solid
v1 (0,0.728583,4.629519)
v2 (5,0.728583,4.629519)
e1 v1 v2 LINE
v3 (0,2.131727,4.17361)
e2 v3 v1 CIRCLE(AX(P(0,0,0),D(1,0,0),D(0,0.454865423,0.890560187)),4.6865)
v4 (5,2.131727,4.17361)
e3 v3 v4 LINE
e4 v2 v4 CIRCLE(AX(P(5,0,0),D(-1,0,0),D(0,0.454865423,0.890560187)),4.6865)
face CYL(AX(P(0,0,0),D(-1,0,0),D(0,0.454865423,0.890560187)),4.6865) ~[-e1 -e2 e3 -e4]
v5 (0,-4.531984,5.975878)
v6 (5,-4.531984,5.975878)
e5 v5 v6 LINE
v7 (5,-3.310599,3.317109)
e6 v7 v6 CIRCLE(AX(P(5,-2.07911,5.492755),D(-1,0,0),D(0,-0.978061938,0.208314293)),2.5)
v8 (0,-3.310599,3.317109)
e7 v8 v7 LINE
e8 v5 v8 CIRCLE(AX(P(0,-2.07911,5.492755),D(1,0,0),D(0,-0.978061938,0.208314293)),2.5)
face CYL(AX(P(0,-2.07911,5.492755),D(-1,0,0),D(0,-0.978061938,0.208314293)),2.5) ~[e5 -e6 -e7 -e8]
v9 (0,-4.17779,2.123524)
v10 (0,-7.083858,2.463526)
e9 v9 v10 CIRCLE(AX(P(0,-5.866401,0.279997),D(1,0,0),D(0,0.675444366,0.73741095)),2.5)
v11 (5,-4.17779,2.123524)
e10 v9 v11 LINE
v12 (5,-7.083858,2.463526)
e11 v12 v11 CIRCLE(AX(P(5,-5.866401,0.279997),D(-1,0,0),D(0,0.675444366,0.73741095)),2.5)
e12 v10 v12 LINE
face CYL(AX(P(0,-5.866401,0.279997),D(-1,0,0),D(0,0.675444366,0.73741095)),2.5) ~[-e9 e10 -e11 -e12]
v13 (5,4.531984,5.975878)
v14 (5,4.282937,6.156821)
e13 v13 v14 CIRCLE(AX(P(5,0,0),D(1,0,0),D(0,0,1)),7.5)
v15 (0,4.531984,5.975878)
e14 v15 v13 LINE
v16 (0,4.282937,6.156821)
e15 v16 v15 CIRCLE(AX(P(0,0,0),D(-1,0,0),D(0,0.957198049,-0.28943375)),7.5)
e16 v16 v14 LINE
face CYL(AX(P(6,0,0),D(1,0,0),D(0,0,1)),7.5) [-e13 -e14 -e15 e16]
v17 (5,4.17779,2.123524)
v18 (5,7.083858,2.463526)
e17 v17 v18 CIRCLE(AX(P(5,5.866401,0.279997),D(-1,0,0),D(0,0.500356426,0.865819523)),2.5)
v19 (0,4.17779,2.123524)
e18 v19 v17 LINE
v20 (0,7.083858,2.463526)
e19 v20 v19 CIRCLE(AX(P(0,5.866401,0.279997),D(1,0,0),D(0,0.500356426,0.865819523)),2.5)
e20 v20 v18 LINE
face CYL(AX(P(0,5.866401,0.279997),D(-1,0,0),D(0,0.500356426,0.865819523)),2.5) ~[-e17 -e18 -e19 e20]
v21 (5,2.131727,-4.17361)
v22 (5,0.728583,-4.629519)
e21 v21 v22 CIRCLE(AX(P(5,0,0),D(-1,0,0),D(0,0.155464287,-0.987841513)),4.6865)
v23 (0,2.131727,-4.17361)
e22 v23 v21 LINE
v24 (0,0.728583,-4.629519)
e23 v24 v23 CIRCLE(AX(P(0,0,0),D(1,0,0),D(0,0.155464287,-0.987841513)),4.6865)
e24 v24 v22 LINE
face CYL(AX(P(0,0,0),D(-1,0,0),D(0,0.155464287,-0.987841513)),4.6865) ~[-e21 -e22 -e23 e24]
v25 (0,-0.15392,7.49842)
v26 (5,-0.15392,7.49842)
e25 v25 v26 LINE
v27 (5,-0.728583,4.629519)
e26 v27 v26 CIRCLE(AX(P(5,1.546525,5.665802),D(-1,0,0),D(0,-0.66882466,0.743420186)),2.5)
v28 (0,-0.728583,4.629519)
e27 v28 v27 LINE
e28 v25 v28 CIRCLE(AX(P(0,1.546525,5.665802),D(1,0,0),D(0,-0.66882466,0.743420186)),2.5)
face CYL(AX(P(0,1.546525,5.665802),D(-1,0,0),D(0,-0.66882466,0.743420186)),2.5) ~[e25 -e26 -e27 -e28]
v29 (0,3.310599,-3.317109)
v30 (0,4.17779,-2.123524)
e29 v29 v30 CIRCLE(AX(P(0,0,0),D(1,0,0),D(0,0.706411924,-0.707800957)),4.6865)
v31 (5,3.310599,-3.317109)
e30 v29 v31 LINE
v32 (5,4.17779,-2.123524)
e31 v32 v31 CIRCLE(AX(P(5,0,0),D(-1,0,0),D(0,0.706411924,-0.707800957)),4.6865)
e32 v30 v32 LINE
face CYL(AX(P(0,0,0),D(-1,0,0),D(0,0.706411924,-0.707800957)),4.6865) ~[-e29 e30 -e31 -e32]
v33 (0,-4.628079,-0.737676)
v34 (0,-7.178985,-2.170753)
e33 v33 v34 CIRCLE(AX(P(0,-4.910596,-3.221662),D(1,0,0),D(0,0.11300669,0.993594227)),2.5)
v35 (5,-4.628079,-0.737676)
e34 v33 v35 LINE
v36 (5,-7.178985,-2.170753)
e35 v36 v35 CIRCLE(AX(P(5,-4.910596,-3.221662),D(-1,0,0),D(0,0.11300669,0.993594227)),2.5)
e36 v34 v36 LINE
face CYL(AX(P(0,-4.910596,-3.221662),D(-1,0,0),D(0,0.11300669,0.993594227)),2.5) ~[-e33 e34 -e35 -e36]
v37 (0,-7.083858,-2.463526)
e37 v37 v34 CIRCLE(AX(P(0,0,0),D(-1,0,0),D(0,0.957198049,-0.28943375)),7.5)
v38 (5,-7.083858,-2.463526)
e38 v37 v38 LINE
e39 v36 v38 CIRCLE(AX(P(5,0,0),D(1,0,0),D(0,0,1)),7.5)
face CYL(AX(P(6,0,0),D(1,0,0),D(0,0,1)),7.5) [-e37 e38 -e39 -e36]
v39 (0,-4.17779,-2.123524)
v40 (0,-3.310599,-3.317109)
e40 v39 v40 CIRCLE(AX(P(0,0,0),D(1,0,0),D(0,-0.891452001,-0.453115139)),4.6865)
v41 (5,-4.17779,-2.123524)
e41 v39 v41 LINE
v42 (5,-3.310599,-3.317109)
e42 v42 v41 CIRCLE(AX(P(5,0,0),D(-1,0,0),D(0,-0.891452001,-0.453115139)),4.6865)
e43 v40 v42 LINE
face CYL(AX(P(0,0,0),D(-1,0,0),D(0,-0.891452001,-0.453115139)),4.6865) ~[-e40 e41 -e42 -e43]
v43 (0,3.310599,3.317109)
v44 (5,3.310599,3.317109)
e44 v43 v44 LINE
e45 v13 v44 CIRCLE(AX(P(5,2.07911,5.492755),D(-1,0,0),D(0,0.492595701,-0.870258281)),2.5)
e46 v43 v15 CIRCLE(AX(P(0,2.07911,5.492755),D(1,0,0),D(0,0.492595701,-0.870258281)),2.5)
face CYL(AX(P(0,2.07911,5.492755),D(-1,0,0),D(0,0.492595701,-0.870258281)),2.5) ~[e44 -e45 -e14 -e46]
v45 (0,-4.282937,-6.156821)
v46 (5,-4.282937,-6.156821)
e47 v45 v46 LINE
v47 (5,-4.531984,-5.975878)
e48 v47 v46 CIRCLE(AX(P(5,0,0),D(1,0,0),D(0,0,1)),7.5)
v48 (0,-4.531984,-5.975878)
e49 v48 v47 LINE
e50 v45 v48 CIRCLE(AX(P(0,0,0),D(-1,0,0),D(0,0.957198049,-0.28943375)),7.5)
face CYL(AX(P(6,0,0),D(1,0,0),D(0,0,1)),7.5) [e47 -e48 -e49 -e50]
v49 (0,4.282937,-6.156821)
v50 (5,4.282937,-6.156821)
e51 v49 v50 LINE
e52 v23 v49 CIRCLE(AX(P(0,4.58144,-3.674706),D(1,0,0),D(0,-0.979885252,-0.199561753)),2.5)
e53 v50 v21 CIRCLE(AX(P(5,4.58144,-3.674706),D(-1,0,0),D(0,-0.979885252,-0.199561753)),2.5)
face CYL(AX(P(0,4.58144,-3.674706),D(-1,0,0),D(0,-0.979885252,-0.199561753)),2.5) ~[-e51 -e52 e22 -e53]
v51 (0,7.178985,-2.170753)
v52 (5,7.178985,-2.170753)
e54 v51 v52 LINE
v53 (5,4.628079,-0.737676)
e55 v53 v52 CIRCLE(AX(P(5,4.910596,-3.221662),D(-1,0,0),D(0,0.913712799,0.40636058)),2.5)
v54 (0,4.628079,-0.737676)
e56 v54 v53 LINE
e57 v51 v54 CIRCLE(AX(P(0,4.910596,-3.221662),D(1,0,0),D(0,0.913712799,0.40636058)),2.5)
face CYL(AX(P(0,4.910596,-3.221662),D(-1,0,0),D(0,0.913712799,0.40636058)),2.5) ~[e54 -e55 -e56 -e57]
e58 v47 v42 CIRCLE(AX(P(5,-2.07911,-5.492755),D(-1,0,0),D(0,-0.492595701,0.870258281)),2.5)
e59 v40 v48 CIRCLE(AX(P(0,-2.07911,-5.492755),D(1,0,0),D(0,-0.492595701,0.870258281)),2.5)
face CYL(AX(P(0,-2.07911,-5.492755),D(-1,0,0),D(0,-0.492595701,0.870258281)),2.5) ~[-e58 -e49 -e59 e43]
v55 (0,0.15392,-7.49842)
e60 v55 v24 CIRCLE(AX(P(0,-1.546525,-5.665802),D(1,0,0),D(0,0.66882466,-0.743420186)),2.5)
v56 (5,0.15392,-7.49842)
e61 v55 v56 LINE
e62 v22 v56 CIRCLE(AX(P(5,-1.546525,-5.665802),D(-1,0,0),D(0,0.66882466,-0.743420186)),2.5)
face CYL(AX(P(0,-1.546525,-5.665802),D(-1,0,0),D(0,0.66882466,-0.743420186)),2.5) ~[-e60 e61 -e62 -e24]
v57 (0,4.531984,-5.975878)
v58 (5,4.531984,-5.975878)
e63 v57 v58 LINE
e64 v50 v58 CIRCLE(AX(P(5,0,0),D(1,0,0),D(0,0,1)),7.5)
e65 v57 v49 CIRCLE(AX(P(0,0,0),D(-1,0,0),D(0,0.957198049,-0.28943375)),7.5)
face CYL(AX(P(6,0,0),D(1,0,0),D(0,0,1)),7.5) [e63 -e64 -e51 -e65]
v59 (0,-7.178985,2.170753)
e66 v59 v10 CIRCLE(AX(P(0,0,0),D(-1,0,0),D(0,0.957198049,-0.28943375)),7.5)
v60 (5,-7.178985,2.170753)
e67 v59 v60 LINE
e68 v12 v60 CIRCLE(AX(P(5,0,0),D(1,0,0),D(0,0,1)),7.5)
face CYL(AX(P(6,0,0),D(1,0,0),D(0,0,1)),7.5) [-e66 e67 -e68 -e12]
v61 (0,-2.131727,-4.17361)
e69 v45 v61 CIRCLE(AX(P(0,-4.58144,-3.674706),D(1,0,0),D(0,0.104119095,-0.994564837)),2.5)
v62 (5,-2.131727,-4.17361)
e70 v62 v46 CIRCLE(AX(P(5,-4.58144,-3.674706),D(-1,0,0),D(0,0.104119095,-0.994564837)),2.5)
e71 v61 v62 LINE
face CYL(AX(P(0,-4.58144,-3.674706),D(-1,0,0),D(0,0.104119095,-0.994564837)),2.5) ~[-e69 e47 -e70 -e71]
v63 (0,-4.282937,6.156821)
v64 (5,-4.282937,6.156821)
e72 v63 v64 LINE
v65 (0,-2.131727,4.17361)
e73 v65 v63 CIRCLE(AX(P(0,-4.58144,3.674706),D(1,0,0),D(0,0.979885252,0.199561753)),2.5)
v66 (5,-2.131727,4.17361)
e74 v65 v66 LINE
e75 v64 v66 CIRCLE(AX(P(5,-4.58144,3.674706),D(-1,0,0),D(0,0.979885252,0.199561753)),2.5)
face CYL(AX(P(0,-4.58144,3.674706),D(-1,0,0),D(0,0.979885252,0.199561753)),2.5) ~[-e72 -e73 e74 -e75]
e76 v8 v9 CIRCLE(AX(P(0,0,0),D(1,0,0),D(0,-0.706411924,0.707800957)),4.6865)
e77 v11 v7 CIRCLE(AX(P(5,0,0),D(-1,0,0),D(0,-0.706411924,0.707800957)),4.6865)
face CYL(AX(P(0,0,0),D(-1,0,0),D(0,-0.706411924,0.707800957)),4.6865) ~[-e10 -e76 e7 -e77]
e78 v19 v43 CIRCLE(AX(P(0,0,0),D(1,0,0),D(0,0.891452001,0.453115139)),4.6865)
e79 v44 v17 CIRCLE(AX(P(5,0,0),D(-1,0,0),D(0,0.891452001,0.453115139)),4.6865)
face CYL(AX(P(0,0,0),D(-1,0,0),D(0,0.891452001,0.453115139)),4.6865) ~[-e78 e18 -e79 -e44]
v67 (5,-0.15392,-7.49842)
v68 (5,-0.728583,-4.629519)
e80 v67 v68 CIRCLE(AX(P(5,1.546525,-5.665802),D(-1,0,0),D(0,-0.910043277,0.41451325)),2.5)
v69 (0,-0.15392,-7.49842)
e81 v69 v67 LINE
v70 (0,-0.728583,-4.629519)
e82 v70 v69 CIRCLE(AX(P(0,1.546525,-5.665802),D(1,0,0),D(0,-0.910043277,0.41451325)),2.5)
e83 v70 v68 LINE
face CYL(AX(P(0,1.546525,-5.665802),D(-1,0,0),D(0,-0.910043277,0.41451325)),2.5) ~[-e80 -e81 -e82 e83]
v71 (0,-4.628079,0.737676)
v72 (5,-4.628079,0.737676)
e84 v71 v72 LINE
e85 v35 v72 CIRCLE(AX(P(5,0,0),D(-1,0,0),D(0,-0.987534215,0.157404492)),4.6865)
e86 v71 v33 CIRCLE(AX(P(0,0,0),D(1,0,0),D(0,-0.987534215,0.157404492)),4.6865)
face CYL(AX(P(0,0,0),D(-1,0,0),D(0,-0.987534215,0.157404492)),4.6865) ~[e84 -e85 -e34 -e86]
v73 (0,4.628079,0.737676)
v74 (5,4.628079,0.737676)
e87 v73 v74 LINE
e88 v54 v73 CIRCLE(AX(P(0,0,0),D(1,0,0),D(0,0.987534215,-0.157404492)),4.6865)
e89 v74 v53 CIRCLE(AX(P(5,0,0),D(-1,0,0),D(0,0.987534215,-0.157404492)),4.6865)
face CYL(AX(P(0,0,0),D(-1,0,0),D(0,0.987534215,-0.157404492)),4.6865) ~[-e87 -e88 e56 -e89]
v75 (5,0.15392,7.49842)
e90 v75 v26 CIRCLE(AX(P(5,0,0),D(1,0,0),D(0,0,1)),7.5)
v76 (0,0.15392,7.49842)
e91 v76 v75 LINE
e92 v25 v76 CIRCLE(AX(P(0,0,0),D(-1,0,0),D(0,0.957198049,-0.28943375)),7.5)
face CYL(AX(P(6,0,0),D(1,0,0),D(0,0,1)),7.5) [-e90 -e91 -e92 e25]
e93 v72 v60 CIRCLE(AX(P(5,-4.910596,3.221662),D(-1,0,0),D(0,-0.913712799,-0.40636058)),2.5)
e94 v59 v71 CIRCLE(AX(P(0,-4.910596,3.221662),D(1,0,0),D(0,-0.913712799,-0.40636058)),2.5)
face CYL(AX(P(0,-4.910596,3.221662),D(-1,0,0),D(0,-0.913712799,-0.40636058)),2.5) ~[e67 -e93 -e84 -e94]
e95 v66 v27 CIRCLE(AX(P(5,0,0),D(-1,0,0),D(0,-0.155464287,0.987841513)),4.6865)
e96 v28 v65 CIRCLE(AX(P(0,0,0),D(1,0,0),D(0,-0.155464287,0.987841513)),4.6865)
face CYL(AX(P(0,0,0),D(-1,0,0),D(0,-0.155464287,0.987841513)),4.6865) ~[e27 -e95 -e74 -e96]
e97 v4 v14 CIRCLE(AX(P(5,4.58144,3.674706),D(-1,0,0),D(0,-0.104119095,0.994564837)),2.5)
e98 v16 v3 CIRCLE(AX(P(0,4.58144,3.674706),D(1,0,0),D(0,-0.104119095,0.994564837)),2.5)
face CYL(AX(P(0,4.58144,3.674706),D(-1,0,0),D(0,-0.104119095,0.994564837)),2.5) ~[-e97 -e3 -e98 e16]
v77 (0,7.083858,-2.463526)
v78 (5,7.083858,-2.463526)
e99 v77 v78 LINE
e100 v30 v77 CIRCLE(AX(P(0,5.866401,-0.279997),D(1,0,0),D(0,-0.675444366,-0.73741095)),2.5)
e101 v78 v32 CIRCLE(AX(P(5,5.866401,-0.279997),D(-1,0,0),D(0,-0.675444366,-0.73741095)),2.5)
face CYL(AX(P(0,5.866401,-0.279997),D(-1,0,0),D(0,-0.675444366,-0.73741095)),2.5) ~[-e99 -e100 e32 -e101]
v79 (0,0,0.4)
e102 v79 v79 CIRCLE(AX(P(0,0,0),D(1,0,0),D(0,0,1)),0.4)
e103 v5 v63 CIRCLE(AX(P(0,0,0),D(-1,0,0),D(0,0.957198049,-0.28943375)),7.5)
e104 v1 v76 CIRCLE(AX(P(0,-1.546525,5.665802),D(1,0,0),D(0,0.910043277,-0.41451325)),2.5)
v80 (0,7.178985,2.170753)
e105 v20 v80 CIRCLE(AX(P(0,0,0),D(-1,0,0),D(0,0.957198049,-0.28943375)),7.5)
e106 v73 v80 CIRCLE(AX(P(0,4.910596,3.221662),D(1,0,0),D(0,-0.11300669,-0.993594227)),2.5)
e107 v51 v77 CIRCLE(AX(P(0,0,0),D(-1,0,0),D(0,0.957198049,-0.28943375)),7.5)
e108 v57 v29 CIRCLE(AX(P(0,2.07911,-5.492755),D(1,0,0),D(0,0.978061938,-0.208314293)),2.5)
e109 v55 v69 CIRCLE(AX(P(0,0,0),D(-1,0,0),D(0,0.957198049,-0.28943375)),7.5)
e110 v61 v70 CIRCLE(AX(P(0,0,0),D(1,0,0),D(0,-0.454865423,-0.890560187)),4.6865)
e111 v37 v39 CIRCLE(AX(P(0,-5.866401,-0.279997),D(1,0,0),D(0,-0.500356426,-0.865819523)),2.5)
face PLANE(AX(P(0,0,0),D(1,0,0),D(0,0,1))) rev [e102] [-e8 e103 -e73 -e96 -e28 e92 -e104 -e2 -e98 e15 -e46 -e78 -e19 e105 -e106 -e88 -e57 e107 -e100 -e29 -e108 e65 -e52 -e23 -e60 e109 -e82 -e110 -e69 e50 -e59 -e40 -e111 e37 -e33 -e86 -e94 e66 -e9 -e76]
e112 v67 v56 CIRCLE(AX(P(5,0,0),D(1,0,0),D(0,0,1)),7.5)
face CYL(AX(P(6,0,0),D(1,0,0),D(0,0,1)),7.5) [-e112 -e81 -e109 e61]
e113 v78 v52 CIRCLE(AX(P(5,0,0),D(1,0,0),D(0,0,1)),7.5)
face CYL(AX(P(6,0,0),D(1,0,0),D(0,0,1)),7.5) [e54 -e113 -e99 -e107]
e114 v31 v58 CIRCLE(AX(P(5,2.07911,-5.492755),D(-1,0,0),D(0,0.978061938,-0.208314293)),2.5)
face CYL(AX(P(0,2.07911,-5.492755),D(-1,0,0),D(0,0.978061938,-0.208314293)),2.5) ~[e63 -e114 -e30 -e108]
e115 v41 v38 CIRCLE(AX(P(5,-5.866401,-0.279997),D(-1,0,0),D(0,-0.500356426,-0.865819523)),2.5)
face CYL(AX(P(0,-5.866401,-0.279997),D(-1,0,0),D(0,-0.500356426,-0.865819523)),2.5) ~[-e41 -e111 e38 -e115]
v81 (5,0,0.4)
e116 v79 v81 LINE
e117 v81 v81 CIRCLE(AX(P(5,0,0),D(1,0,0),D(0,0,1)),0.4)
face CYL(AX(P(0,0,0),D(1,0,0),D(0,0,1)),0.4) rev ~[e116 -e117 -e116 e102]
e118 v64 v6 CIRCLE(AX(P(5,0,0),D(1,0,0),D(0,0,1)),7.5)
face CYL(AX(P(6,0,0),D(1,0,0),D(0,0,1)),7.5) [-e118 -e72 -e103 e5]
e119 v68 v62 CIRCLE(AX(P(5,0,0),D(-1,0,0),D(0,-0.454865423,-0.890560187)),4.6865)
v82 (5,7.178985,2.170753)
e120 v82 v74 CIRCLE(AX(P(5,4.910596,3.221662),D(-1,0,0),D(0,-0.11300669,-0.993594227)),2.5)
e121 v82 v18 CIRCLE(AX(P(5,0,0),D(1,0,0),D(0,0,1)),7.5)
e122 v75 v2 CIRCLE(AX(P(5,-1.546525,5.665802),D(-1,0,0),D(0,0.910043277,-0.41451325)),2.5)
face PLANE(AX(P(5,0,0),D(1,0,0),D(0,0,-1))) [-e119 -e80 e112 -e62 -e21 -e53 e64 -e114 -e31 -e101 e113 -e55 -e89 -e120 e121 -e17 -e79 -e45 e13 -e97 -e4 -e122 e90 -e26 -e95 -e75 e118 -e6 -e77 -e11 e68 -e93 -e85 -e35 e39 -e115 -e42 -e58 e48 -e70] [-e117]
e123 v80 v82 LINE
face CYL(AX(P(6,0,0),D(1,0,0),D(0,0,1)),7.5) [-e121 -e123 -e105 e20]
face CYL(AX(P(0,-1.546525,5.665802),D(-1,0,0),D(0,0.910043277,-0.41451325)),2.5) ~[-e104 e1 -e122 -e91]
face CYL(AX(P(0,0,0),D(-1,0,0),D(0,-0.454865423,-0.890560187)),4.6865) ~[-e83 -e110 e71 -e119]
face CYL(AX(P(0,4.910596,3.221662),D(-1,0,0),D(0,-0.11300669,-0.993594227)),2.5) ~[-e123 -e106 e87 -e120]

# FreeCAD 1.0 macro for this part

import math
import FreeCAD as App
import Part
import Sketcher
from FreeCAD import Vector

doc = App.newDocument("Part")
params = doc.addObject("Spreadsheet::Sheet", "Params")
for row, (alias, value) in enumerate([
    ("sketch1_width", "12 mm"),
    ("sketch1_height", "7.5 mm"),
    ("revolution_angle", "360 deg"),
    ("sketch2_radius", "2.5 mm"),
    ("sketch3_diameter", "0.8 mm"),
    ("pocket2_length", "100.000102 mm"),
    ("pocket3_length", "7 mm"),
], start=1):
    params.set(f"A{row}", alias)
    params.set(f"B{row}", "=" + value)
    params.setAlias(f"B{row}", alias)

body = doc.addObject("PartDesign::Body", "Body")

# Sketch on XZ plane
sketch1 = body.newObject("Sketcher::SketchObject", "Sketch")
sketch1.AttachmentSupport = (doc.getObject("XZ_Plane"), [""])
sketch1.MapMode = "FlatFace"
sketch1.addGeometry(Part.LineSegment(Vector(0, -8, 0), Vector(0, 0, 0)), False)
sketch1.addGeometry(Part.LineSegment(Vector(0, 0, 0), Vector(12, 0, 0)), False)
sketch1.addGeometry(Part.LineSegment(Vector(12, 0, 0), Vector(12, -8, 0)), False)
sketch1.addGeometry(Part.LineSegment(Vector(12, -8, 0), Vector(0, -8, 0)), False)
sketch1.addConstraint(Sketcher.Constraint("Coincident", 0, 2, 1, 1))
sketch1.addConstraint(Sketcher.Constraint("Coincident", 1, 2, 2, 1))
sketch1.addConstraint(Sketcher.Constraint("Coincident", 2, 2, 3, 1))
sketch1.addConstraint(Sketcher.Constraint("Coincident", 3, 2, 0, 1))
sketch1.addConstraint(Sketcher.Constraint("Vertical", 0))
sketch1.addConstraint(Sketcher.Constraint("Horizontal", 1))
sketch1.addConstraint(Sketcher.Constraint("Vertical", 2))
sketch1.addConstraint(Sketcher.Constraint("Horizontal", 3))
sketch1.addConstraint(Sketcher.Constraint("Coincident", 0, 2, -1, 1))
sketch1.addConstraint(Sketcher.Constraint("DistanceX", 1, 1, 1, 2, 12.0))
sketch1.addConstraint(Sketcher.Constraint("DistanceY", 0, 1, 0, 2, 7.5))
sketch1.setExpression("Constraints[9]", "Params.sketch1_width")
sketch1.setExpression("Constraints[10]", "Params.sketch1_height")
revolution = body.newObject("PartDesign::Revolution", "Revolution")
revolution.Profile = sketch1
revolution.ReferenceAxis = (sketch1, ["H_Axis"])
revolution.setExpression("Angle", "Params.revolution_angle")

# Sketch on YZ plane
sketch2 = body.newObject("Sketcher::SketchObject", "Sketch001")
sketch2.AttachmentSupport = (doc.getObject("YZ_Plane"), [""])
sketch2.MapMode = "FlatFace"
sketch2.addGeometry(Part.ArcOfCircle(Part.Circle(Vector(0, 0, 0), Vector(0, 0, 1), 4.7), math.radians(-9.06), math.radians(9.06)), False)
sketch2.addGeometry(Part.ArcOfCircle(Part.Circle(Vector(4.9, -3.2, 0), Vector(0, 0, 1), 2.5), math.radians(24), math.radians(96)), False)
sketch2.addGeometry(Part.ArcOfCircle(Part.Circle(Vector(0, 0, 0), Vector(0, 0, 1), 7.5), math.radians(-17), math.radians(17)), False)
sketch2.addGeometry(Part.ArcOfCircle(Part.Circle(Vector(4.9, 3.2, 0), Vector(0, 0, 1), 2.5), math.radians(-96), math.radians(-24)), False)
sketch2.addConstraint(Sketcher.Constraint("Coincident", 0, 1, 1, 2))
sketch2.addConstraint(Sketcher.Constraint("Coincident", 1, 1, 2, 1))
sketch2.addConstraint(Sketcher.Constraint("Coincident", 2, 2, 3, 2))
sketch2.addConstraint(Sketcher.Constraint("Coincident", 3, 1, 0, 2))
sketch2.addConstraint(Sketcher.Constraint("Coincident", 0, 3, -1, 1))
sketch2.addConstraint(Sketcher.Constraint("Coincident", 2, 3, -1, 1))
sketch2.addConstraint(Sketcher.Constraint("Equal", 1, 3))
sketch2.addConstraint(Sketcher.Constraint("Symmetric", 1, 3, 3, 3, -1))
sketch2.addConstraint(Sketcher.Constraint("Radius", 1, 2.5))
sketch2.addConstraint(Sketcher.Constraint("Radius", 0, 4.6865))
sketch2.addConstraint(Sketcher.Constraint("Radius", 2, 7.5254))
sketch2.addConstraint(Sketcher.Constraint("DistanceY", 1, 3, 1, 1, 1.015901))
sketch2.addConstraint(Sketcher.Constraint("DistanceX", 0, 1, 1, 1, 2.566799))
sketch2.setExpression("Constraints[8]", "Params.sketch2_radius")
pocket1 = body.newObject("PartDesign::Pocket", "Pocket")
pocket1.Profile = sketch2
pocket1.Type = "ThroughAll"
pocket1.Reversed = True
doc.recompute()

polarpattern = body.newObject("PartDesign::PolarPattern", "PolarPattern")
polarpattern.Originals = [pocket1]
polarpattern.Axis = (doc.getObject("X_Axis"), [""])
polarpattern.Angle = 360
polarpattern.Occurrences = 10
body.Tip = polarpattern

# Sketch on YZ plane
sketch3 = body.newObject("Sketcher::SketchObject", "Sketch002")
sketch3.AttachmentSupport = (doc.getObject("YZ_Plane"), [""])
sketch3.MapMode = "FlatFace"
sketch3.addGeometry(Part.Circle(Vector(0, 0, 0), Vector(0, 0, 1), 0.4), False)
sketch3.addConstraint(Sketcher.Constraint("Coincident", 0, 3, -1, 1))
sketch3.addConstraint(Sketcher.Constraint("Diameter", 0, 0.8))
sketch3.setExpression("Constraints[1]", "Params.sketch3_diameter")
pocket2 = body.newObject("PartDesign::Pocket", "Pocket001")
pocket2.Profile = sketch3
pocket2.setExpression("Length", "Params.pocket2_length")
pocket2.Midplane = True

# Sketch on YZ plane
sketch4 = body.newObject("Sketcher::SketchObject", "Sketch003")
sketch4.AttachmentSupport = (doc.getObject("YZ_Plane"), [""])
sketch4.MapMode = "FlatFace"
sketch4.AttachmentOffset = App.Placement(Vector(0, 0, 12), App.Rotation())
sketch4.addGeometry(Part.LineSegment(Vector(8, 9, 0), Vector(-8, 9, 0)), False)
sketch4.addGeometry(Part.LineSegment(Vector(-8, 9, 0), Vector(-8, -9, 0)), False)
sketch4.addGeometry(Part.LineSegment(Vector(-8, -9, 0), Vector(8, -9, 0)), False)
sketch4.addGeometry(Part.LineSegment(Vector(8, -9, 0), Vector(8, 9, 0)), False)
sketch4.addConstraint(Sketcher.Constraint("Coincident", 0, 2, 1, 1))
sketch4.addConstraint(Sketcher.Constraint("Coincident", 1, 2, 2, 1))
sketch4.addConstraint(Sketcher.Constraint("Coincident", 2, 2, 3, 1))
sketch4.addConstraint(Sketcher.Constraint("Coincident", 3, 2, 0, 1))
sketch4.addConstraint(Sketcher.Constraint("Horizontal", 0))
sketch4.addConstraint(Sketcher.Constraint("Vertical", 1))
sketch4.addConstraint(Sketcher.Constraint("Horizontal", 2))
sketch4.addConstraint(Sketcher.Constraint("Vertical", 3))
sketch4.addConstraint(Sketcher.Constraint("Symmetric", 0, 2, 2, 2, -1, 1))
sketch4.addConstraint(Sketcher.Constraint("DistanceY", 1, 2, 1, 1, 18.724631))
sketch4.addConstraint(Sketcher.Constraint("DistanceX", 0, 2, 0, 1, 16.705622))
pocket3 = body.newObject("PartDesign::Pocket", "Pocket002")
pocket3.Profile = sketch4
pocket3.setExpression("Length", "Params.pocket3_length")

doc.recompute()
